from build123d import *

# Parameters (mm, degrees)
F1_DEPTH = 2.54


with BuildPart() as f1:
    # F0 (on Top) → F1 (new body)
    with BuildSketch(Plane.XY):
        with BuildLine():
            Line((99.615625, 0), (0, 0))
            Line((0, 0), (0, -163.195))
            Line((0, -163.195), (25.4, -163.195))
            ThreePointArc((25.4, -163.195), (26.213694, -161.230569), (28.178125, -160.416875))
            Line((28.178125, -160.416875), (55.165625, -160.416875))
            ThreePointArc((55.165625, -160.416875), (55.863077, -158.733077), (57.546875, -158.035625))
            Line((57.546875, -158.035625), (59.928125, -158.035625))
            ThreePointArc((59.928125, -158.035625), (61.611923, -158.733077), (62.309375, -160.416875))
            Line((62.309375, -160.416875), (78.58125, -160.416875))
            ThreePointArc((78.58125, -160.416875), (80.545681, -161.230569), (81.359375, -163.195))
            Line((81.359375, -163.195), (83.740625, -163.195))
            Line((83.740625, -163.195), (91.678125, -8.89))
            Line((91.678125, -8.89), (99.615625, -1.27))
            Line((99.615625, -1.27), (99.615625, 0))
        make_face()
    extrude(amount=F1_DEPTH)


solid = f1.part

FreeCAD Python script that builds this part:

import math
import FreeCAD as App
import Part
import Sketcher
Q = App.Units.Quantity

doc = App.newDocument("Part")
params = doc.addObject("Spreadsheet::Sheet", "Params")
for row, (alias, value) in enumerate([
    ("sketch1_width", "1 in"),
    ("sketch1_radius", "0.109375 in"),
    ("sketch1_radius2", "0.09375 in"),
    ("sketch1_height", "0.05 in"),
    ("sketch1_width2", "3.921875 in"),
    ("pad1_length", "0.1 in"),
], start=1):
    params.set(f"A{row}", alias)
    params.set(f"B{row}", "=" + value)
    params.setAlias(f"B{row}", alias)

body = doc.addObject("PartDesign::Body", "Body")

sketch1 = doc.addObject("Sketcher::SketchObject", "Sketch")
body.addObject(sketch1)
sketch1.AttachmentSupport = (doc.XY_Plane, [""])
sketch1.MapMode = "FlatFace"
sketch1.addGeometry([
    Part.LineSegment(App.Vector(99.6, 0, 0), App.Vector(0, 0, 0)),
    Part.LineSegment(App.Vector(0, 0, 0), App.Vector(0, -163.2, 0)),
    Part.LineSegment(App.Vector(0, -163.2, 0), App.Vector(25.4, -163.2, 0)),
    Part.ArcOfCircle(Part.Circle(App.Vector(28.2, -163.2, 0), App.Vector(0, 0, 1), 2.8), math.radians(90), math.radians(180)),
    Part.LineSegment(App.Vector(28.2, -160.4, 0), App.Vector(55.2, -160.4, 0)),
    Part.ArcOfCircle(Part.Circle(App.Vector(57.5, -160.4, 0), App.Vector(0, 0, 1), 2.4), math.radians(90), math.radians(180)),
    Part.LineSegment(App.Vector(57.5, -158, 0), App.Vector(59.9, -158, 0)),
    Part.ArcOfCircle(Part.Circle(App.Vector(59.9, -160.4, 0), App.Vector(0, 0, 1), 2.4), math.radians(0), math.radians(90)),
    Part.LineSegment(App.Vector(62.3, -160.4, 0), App.Vector(78.6, -160.4, 0)),
    Part.ArcOfCircle(Part.Circle(App.Vector(78.6, -163.2, 0), App.Vector(0, 0, 1), 2.8), math.radians(0), math.radians(90)),
    Part.LineSegment(App.Vector(81.4, -163.2, 0), App.Vector(83.7, -163.2, 0)),
    Part.LineSegment(App.Vector(83.7, -163.2, 0), App.Vector(91.7, -8.9, 0)),
    Part.LineSegment(App.Vector(91.7, -8.9, 0), App.Vector(99.6, -1.3, 0)),
    Part.LineSegment(App.Vector(99.6, -1.3, 0), App.Vector(99.6, 0, 0)),
], False)
sketch1.addConstraint([
    Sketcher.Constraint("Coincident", 0, 2, 1, 1),
    Sketcher.Constraint("Coincident", 1, 2, 2, 1),
    Sketcher.Constraint("Coincident", 2, 2, 3, 2),
    Sketcher.Constraint("Tangent", 3, 1, 4, 1),
    Sketcher.Constraint("Coincident", 4, 2, 5, 2),
    Sketcher.Constraint("Tangent", 5, 1, 6, 1),
    Sketcher.Constraint("Tangent", 6, 2, 7, 2),
    Sketcher.Constraint("Coincident", 7, 1, 8, 1),
    Sketcher.Constraint("Tangent", 8, 2, 9, 2),
    Sketcher.Constraint("Coincident", 9, 1, 10, 1),
    Sketcher.Constraint("Coincident", 10, 2, 11, 1),
    Sketcher.Constraint("Coincident", 11, 2, 12, 1),
    Sketcher.Constraint("Coincident", 12, 2, 13, 1),
    Sketcher.Constraint("Coincident", 13, 2, 0, 1),
    Sketcher.Constraint("Horizontal", 0),
    Sketcher.Constraint("Vertical", 1),
    Sketcher.Constraint("Horizontal", 2),
    Sketcher.Constraint("Horizontal", 4),
    Sketcher.Constraint("Horizontal", 6),
    Sketcher.Constraint("Horizontal", 8),
    Sketcher.Constraint("Horizontal", 10),
    Sketcher.Constraint("Vertical", 13),
    Sketcher.Constraint("Coincident", 0, 2, -1, 1),
    Sketcher.Constraint("Equal", 5, 7),
    Sketcher.Constraint("Equal", 3, 9),
    Sketcher.Constraint("Horizontal", 3, 3, 9, 3),
    Sketcher.Constraint("Horizontal", 9, 3, 1, 2),
    Sketcher.Constraint("Horizontal", 7, 3, 3, 1),
    Sketcher.Constraint("Horizontal", 2, 2, 9, 1),
    Sketcher.Constraint("Equal", 6, 10),
    Sketcher.Constraint("DistanceX", 2, 1, 2, 2, Q("1 in")),
    Sketcher.Constraint("Radius", 3, Q("0.109375 in")),
    Sketcher.Constraint("Radius", 5, Q("0.09375 in")),
    Sketcher.Constraint("DistanceY", 13, 1, 13, 2, Q("0.05 in")),
    Sketcher.Constraint("DistanceY", 11, 2, 12, 2, Q("0.3 in")),
    Sketcher.Constraint("DistanceX", 0, 2, 0, 1, Q("3.921875 in")),
    Sketcher.Constraint("DistanceX", 4, 1, 4, 2, Q("1.0625 in")),
    Sketcher.Constraint("DistanceX", 6, 1, 6, 2, Q("0.09375 in")),
    Sketcher.Constraint("DistanceX", 8, 1, 8, 2, Q("0.640625 in")),
    Sketcher.Constraint("DistanceY", 1, 2, 1, 1, Q("6.425 in")),
    Sketcher.Constraint("DistanceX", 6, 2, 11, 2, Q("1.25 in")),
])
sketch1.setExpression("Constraints[30]", "Params.sketch1_width")
sketch1.setExpression("Constraints[31]", "Params.sketch1_radius")
sketch1.setExpression("Constraints[32]", "Params.sketch1_radius2")
sketch1.setExpression("Constraints[33]", "Params.sketch1_height")
sketch1.setExpression("Constraints[35]", "Params.sketch1_width2")
pad1 = doc.addObject("PartDesign::Pad", "Pad")
body.addObject(pad1)
pad1.Profile = sketch1
pad1.setExpression("Length", "Params.pad1_length")

doc.recompute()
